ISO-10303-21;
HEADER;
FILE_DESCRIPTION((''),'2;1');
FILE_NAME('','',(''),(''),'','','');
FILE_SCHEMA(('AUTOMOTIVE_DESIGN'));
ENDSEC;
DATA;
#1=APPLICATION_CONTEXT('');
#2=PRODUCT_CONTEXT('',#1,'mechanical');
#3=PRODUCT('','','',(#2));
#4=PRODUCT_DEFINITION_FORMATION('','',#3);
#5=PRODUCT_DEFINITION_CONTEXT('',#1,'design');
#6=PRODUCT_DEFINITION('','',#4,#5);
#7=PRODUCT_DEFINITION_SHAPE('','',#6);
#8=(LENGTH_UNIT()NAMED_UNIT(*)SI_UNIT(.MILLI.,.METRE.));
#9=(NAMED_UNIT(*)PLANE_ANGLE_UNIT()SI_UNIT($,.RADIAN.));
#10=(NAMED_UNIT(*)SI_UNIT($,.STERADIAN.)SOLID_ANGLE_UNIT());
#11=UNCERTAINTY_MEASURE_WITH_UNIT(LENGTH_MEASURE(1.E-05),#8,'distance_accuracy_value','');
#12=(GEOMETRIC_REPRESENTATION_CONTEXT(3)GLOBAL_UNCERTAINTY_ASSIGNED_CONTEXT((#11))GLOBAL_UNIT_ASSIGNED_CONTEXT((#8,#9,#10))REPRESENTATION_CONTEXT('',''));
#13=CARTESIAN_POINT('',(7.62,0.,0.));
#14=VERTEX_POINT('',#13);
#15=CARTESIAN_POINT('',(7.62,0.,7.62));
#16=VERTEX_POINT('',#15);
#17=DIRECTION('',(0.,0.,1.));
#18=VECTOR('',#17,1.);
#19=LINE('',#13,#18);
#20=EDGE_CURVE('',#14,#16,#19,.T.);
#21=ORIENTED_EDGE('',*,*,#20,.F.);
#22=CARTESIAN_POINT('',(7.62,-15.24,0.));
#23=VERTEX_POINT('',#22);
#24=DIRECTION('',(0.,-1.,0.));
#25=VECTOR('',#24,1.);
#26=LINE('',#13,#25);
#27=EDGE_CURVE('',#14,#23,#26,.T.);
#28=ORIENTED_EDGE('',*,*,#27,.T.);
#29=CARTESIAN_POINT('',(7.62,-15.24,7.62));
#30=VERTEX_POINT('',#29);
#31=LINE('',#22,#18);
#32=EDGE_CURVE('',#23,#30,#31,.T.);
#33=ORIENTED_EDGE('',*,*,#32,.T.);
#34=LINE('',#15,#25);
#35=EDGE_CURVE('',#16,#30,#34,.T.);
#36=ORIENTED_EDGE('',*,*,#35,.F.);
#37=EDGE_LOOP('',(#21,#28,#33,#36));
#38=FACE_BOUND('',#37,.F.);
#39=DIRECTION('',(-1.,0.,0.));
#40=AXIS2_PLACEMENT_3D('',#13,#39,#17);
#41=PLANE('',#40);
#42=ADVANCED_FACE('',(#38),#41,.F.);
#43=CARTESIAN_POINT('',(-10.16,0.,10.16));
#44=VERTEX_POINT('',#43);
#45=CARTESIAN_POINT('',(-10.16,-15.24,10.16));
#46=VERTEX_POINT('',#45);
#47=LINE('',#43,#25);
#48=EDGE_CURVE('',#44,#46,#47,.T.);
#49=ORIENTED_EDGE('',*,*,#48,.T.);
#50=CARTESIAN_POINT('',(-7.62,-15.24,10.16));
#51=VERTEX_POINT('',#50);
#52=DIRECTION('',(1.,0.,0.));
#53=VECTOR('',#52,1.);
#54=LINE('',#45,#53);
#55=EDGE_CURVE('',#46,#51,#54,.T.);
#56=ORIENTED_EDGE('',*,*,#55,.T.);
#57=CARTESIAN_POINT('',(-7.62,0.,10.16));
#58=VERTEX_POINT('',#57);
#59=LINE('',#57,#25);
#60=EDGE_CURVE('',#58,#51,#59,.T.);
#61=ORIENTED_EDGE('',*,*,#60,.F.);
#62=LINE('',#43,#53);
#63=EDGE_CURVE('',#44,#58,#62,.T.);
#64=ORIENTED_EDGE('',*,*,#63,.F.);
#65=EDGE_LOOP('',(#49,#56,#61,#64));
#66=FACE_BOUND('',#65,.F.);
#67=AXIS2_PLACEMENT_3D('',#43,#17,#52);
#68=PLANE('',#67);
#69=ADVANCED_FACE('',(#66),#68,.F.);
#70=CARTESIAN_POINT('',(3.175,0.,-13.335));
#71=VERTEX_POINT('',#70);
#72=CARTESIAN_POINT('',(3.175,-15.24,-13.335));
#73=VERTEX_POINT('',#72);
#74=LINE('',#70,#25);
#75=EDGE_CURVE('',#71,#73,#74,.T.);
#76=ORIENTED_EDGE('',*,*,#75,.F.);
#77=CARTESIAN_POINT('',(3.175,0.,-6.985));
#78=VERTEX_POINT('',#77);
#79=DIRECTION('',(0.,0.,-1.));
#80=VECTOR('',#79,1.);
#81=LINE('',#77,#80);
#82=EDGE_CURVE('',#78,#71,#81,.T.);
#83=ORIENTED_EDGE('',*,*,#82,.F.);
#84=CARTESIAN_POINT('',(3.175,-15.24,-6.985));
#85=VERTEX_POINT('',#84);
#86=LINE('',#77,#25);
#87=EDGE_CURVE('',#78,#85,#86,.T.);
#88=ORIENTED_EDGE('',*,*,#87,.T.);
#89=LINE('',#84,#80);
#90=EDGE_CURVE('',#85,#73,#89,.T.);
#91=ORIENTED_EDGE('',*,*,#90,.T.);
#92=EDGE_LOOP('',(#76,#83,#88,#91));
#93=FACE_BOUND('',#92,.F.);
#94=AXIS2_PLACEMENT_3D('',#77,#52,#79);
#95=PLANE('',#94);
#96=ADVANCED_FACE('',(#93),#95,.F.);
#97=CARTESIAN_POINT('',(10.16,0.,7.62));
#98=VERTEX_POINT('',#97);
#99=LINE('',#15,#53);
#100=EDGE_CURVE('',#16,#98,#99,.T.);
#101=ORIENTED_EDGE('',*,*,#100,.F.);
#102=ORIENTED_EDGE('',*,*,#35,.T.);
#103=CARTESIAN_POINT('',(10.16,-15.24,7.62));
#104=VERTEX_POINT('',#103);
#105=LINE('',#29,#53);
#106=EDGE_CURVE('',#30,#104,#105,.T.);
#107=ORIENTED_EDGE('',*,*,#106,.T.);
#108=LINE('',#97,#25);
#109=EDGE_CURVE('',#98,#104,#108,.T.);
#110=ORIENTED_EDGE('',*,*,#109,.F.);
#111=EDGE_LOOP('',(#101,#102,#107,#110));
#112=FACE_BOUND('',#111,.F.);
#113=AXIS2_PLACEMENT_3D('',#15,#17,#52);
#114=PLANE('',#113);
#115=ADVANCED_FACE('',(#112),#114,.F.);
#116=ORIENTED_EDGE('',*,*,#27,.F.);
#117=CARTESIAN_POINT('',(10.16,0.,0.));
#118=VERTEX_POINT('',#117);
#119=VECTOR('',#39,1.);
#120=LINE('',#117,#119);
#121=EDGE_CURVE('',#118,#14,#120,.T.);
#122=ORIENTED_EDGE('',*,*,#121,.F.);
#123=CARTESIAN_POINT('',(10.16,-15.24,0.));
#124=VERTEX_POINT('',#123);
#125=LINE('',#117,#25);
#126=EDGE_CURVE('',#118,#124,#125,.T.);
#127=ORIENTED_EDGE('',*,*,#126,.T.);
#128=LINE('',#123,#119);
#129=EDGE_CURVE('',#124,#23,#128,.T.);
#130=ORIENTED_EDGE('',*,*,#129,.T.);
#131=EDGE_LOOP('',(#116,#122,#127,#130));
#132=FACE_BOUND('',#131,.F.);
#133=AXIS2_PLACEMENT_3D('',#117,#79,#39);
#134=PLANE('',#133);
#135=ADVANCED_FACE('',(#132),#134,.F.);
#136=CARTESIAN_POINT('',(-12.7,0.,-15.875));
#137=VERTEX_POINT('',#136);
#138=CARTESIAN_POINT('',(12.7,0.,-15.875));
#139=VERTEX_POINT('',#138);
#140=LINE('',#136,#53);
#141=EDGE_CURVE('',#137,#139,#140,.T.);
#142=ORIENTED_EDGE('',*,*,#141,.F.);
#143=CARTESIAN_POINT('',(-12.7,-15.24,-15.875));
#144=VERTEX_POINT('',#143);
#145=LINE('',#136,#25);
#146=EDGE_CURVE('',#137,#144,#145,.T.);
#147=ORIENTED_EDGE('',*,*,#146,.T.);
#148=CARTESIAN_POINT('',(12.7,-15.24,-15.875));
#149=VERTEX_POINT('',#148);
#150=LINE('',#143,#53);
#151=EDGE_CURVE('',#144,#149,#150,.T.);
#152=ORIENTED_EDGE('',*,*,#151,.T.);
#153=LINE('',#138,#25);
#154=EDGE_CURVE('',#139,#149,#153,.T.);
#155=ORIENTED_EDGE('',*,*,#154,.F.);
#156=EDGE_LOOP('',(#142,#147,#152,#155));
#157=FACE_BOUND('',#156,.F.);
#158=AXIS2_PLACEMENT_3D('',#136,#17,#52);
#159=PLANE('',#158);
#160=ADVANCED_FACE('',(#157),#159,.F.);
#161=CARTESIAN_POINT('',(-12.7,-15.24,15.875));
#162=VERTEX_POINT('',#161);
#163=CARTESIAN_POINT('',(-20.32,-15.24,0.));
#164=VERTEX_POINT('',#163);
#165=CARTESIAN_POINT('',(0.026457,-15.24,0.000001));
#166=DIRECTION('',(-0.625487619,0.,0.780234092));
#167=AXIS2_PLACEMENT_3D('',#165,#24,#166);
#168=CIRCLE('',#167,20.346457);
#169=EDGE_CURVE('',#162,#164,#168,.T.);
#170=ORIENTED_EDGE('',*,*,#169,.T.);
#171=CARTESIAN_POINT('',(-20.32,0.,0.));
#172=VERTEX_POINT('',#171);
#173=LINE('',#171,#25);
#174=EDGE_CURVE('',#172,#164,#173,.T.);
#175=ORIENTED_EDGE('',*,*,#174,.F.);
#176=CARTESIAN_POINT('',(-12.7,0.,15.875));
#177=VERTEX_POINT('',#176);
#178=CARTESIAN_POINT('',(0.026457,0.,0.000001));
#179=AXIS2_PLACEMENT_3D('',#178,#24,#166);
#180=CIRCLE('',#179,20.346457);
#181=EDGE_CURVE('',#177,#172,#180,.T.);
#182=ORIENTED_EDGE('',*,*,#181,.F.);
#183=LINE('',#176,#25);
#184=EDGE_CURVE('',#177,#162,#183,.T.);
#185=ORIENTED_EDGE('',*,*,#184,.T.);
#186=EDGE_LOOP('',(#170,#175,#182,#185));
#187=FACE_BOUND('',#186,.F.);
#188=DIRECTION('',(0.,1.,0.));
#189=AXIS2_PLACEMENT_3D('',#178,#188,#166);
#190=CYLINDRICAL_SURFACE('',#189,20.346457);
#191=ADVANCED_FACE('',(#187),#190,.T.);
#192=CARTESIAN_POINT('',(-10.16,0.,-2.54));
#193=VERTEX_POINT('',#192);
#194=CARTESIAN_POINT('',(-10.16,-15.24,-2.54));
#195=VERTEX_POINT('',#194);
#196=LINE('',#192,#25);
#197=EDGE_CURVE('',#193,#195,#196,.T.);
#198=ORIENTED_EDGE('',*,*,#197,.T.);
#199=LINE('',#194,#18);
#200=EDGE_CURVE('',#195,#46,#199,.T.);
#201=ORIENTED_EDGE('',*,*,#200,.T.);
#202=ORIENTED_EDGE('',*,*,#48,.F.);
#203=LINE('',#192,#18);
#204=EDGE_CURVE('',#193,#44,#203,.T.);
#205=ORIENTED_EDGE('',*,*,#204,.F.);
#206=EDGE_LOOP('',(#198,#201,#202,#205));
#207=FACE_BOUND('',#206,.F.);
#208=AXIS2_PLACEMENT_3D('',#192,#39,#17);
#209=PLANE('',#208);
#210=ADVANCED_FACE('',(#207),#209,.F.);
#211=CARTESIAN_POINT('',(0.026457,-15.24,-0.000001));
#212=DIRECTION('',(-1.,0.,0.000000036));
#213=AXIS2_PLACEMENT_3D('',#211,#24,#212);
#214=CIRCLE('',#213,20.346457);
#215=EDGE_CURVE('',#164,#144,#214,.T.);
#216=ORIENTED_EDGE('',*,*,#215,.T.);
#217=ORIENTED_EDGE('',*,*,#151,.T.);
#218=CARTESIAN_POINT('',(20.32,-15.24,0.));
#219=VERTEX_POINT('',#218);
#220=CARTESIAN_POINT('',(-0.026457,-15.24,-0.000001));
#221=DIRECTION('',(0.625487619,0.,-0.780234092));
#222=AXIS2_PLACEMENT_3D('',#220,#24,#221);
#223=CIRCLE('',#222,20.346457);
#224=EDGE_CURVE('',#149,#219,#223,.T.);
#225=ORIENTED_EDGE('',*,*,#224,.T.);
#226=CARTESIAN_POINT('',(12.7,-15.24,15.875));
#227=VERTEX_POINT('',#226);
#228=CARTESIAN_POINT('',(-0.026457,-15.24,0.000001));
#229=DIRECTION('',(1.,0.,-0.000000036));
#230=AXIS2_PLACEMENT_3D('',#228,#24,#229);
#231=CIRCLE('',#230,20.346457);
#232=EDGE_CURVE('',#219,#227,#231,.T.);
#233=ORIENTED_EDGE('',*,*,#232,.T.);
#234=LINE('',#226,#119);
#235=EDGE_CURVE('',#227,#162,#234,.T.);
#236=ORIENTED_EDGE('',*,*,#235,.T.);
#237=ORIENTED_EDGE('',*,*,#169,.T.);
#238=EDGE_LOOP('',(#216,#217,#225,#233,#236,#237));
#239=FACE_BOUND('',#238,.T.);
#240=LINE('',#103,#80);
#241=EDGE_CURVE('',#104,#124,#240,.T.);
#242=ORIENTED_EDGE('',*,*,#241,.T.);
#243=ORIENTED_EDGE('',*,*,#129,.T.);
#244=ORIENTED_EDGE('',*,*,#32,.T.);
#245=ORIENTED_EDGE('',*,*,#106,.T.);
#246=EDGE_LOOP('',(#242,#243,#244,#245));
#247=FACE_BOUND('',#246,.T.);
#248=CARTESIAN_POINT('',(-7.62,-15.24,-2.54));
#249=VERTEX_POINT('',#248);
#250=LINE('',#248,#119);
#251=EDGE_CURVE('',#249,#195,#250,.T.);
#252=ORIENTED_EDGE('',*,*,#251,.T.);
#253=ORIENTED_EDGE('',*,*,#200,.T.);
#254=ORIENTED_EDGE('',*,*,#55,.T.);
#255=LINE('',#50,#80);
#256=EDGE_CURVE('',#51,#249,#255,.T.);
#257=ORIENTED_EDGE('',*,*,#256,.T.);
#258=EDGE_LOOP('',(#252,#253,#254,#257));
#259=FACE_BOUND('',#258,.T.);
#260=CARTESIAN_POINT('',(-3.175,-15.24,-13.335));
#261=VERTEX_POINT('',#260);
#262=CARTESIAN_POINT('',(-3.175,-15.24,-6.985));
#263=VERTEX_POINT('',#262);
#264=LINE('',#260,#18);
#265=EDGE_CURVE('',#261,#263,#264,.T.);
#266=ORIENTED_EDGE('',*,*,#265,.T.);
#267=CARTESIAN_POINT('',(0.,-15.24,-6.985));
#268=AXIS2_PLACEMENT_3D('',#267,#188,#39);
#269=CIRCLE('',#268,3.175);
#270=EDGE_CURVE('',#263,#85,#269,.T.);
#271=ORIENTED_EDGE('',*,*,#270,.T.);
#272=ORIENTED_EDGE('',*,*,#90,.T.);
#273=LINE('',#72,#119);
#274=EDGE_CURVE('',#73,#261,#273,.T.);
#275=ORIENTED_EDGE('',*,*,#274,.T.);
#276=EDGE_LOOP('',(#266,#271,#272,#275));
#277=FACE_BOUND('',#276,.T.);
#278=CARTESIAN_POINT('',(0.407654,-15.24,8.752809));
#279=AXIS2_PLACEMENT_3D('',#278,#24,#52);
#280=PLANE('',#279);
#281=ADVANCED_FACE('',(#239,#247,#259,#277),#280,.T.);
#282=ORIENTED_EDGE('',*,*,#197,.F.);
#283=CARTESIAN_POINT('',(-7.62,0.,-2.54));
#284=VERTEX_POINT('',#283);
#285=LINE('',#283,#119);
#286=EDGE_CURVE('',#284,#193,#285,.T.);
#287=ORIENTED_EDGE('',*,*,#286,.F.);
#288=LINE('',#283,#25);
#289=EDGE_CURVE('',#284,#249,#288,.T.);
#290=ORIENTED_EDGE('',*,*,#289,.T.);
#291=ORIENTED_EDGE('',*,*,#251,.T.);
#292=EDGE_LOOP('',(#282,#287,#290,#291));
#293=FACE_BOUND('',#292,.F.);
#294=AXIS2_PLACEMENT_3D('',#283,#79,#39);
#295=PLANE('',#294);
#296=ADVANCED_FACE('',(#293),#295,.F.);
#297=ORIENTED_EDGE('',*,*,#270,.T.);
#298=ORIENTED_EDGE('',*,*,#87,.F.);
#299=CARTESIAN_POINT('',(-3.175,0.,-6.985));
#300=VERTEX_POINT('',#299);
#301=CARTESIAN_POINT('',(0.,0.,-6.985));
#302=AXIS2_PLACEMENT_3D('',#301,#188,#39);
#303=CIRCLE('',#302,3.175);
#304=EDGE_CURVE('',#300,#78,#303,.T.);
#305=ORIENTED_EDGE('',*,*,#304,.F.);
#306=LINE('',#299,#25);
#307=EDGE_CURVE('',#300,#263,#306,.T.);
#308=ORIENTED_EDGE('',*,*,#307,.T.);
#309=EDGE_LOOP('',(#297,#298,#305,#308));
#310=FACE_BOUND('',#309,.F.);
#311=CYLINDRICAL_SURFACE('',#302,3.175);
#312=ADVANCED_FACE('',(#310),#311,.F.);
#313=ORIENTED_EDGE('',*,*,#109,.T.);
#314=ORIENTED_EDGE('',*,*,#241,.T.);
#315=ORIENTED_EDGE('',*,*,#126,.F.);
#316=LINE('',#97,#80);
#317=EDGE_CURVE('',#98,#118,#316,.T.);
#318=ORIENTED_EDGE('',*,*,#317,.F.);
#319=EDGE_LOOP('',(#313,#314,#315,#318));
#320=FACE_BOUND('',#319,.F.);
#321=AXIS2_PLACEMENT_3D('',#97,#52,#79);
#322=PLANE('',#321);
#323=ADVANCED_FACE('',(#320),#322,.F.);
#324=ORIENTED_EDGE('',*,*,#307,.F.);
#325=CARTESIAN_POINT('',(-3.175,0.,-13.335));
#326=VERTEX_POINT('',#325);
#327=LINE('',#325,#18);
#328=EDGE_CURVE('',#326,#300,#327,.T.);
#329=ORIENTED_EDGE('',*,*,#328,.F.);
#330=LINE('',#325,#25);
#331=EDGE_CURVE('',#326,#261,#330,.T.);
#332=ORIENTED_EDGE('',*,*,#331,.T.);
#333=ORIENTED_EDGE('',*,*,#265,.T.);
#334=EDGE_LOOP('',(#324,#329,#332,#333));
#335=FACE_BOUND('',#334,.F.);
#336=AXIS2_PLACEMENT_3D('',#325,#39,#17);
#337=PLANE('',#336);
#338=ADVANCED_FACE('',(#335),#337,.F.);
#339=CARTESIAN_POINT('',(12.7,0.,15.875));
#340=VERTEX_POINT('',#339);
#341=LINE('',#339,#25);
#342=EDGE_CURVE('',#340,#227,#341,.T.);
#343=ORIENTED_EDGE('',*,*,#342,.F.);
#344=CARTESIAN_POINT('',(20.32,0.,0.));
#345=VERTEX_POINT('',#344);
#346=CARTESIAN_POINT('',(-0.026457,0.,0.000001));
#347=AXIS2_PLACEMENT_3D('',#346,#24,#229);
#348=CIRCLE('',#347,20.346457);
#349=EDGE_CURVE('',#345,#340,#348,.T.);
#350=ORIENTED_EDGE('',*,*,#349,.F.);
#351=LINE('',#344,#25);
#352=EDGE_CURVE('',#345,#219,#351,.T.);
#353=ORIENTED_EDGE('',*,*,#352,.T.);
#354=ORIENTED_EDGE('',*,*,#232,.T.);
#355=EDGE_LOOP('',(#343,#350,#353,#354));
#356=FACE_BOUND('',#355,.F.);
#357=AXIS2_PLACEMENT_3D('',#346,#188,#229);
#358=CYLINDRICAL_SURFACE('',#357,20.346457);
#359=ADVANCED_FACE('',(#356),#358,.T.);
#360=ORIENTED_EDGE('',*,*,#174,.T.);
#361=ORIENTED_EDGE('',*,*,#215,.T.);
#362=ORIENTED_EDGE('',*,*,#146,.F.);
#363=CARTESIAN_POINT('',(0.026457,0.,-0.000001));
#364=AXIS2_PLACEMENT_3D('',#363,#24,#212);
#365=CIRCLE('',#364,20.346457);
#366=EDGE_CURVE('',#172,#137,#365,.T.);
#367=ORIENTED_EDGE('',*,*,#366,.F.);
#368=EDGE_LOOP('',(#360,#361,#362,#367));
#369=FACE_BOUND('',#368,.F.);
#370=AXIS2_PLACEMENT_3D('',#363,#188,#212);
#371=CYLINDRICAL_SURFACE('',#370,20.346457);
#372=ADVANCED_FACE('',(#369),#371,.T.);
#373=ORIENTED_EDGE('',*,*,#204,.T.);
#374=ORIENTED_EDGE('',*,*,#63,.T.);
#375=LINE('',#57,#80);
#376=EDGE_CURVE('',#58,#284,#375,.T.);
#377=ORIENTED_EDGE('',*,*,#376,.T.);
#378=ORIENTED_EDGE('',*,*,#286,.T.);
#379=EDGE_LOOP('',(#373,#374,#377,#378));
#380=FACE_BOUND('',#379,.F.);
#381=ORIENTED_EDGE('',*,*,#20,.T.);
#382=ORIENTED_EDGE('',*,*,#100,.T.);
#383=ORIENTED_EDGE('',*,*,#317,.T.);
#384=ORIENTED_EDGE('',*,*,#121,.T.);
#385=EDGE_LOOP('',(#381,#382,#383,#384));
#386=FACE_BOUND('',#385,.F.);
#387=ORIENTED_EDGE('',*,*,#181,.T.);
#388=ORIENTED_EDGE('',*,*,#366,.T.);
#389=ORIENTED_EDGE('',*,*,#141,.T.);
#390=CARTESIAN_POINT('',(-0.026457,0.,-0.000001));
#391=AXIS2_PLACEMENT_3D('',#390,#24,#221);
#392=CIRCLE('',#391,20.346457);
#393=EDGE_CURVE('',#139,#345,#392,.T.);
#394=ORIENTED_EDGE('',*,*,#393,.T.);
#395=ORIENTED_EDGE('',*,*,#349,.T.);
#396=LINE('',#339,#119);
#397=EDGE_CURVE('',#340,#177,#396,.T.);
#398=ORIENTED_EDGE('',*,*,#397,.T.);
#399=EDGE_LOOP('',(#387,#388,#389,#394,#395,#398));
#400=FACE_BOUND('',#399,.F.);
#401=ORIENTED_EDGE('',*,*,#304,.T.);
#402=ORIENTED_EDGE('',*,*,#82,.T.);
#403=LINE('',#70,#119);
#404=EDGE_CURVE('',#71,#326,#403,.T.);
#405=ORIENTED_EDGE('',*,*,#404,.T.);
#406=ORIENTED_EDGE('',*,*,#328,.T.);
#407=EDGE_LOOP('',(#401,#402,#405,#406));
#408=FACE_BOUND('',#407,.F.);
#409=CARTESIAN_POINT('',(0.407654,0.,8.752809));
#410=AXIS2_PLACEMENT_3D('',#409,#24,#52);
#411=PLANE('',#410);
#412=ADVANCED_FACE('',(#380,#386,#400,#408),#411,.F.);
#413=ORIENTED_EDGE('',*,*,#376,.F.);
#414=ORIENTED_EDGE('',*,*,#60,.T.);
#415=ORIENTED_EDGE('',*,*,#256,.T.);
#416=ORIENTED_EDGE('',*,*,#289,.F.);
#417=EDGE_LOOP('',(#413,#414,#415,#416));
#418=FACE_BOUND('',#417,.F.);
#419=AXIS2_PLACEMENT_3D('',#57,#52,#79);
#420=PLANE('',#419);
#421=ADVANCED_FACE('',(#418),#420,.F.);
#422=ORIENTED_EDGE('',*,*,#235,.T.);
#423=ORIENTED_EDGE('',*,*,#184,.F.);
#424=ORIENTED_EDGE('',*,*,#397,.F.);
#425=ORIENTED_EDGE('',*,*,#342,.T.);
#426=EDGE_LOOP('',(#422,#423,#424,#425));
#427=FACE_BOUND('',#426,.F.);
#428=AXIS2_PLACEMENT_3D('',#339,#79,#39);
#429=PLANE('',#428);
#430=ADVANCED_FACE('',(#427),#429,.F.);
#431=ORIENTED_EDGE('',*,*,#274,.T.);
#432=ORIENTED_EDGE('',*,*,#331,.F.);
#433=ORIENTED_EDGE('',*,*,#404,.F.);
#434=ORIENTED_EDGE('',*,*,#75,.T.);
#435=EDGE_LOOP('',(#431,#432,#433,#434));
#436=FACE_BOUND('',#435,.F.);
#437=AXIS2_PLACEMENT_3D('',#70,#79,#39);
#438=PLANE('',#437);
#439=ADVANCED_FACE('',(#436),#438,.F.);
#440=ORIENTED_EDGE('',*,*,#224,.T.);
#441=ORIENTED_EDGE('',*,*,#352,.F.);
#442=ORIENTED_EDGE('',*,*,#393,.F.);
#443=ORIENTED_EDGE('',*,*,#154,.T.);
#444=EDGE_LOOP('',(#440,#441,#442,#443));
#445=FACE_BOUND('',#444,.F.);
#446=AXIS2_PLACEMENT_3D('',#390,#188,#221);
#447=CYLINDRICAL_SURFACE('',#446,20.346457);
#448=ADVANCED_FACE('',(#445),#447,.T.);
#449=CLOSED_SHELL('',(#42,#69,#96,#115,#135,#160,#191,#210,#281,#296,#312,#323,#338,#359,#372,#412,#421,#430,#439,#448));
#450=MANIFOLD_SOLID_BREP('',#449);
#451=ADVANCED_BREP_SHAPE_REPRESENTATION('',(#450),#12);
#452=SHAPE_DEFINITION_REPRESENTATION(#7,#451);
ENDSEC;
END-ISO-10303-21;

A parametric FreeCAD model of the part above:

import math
import FreeCAD as App
import Part
import Sketcher
Q = App.Units.Quantity

doc = App.newDocument("Part")
body = doc.addObject("PartDesign::Body", "Body")

# Sketch on XZ plane
sketch1 = body.newObject("Sketcher::SketchObject", "Sketch")
sketch1.AttachmentSupport = (doc.getObject("XZ_Plane"), [""])
sketch1.MapMode = "FlatFace"
sketch1.addGeometry([
    Part.LineSegment(App.Vector(12.7, 15.875, 0), App.Vector(-12.7, 15.875, 0)),  # 0
    Part.ArcOfCircle(Part.Circle(App.Vector(0.026457, 0.000001, 0), App.Vector(0, 0, 1), 20.346457), math.radians(128.717986), math.radians(180.000002)),  # 1
    Part.ArcOfCircle(Part.Circle(App.Vector(0.026457, -0.000001, 0), App.Vector(0, 0, 1), 20.346457), math.radians(179.999998), math.radians(231.282014)),  # 2
    Part.LineSegment(App.Vector(-12.7, -15.875, 0), App.Vector(12.7, -15.875, 0)),  # 3
    Part.ArcOfCircle(Part.Circle(App.Vector(-0.026457, -0.000001, 0), App.Vector(0, 0, 1), 20.346457), math.radians(-51.282014), math.radians(0.000002)),  # 4
    Part.ArcOfCircle(Part.Circle(App.Vector(-0.026457, 0.000001, 0), App.Vector(0, 0, 1), 20.346457), math.radians(-0.000002), math.radians(51.282014)),  # 5
    Part.LineSegment(App.Vector(-10.16, 10.16, 0), App.Vector(-7.62, 10.16, 0)),  # 6
    Part.LineSegment(App.Vector(-7.62, 10.16, 0), App.Vector(-7.62, -2.54, 0)),  # 7
    Part.LineSegment(App.Vector(-7.62, -2.54, 0), App.Vector(-10.16, -2.54, 0)),  # 8
    Part.LineSegment(App.Vector(-10.16, -2.54, 0), App.Vector(-10.16, 10.16, 0)),  # 9
    Part.LineSegment(App.Vector(3.175, -6.985, 0), App.Vector(3.175, -13.335, 0)),  # 10
    Part.LineSegment(App.Vector(3.175, -13.335, 0), App.Vector(-3.175, -13.335, 0)),  # 11
    Part.LineSegment(App.Vector(-3.175, -13.335, 0), App.Vector(-3.175, -6.985, 0)),  # 12
    Part.ArcOfCircle(Part.Circle(App.Vector(0, -6.985, 0), App.Vector(0, 0, 1), 3.175), math.radians(0), math.radians(180)),  # 13
    Part.LineSegment(App.Vector(7.62, 7.62, 0), App.Vector(10.16, 7.62, 0)),  # 14
    Part.LineSegment(App.Vector(10.16, 7.62, 0), App.Vector(10.16, 0, 0)),  # 15
    Part.LineSegment(App.Vector(10.16, 0, 0), App.Vector(7.62, 0, 0)),  # 16
    Part.LineSegment(App.Vector(7.62, 0, 0), App.Vector(7.62, 7.62, 0)),  # 17
], False)
sketch1.addConstraint([
    Sketcher.Constraint("Coincident", 0, 2, 1, 1),
    Sketcher.Constraint("Tangent", 1, 2, 2, 1),
    Sketcher.Constraint("Coincident", 2, 2, 3, 1),
    Sketcher.Constraint("Coincident", 3, 2, 4, 1),
    Sketcher.Constraint("Tangent", 4, 2, 5, 1),
    Sketcher.Constraint("Coincident", 5, 2, 0, 1),
    Sketcher.Constraint("Coincident", 6, 2, 7, 1),
    Sketcher.Constraint("Coincident", 7, 2, 8, 1),
    Sketcher.Constraint("Coincident", 8, 2, 9, 1),
    Sketcher.Constraint("Coincident", 9, 2, 6, 1),
    Sketcher.Constraint("Coincident", 10, 2, 11, 1),
    Sketcher.Constraint("Coincident", 11, 2, 12, 1),
    Sketcher.Constraint("Tangent", 12, 2, 13, 2),
    Sketcher.Constraint("Tangent", 13, 1, 10, 1),
    Sketcher.Constraint("Coincident", 14, 2, 15, 1),
    Sketcher.Constraint("Coincident", 15, 2, 16, 1),
    Sketcher.Constraint("Coincident", 16, 2, 17, 1),
    Sketcher.Constraint("Coincident", 17, 2, 14, 1),
    Sketcher.Constraint("Horizontal", 0),
    Sketcher.Constraint("Horizontal", 3),
    Sketcher.Constraint("Horizontal", 6),
    Sketcher.Constraint("Vertical", 7),
    Sketcher.Constraint("Horizontal", 8),
    Sketcher.Constraint("Vertical", 9),
    Sketcher.Constraint("Vertical", 10),
    Sketcher.Constraint("Horizontal", 11),
    Sketcher.Constraint("Vertical", 12),
    Sketcher.Constraint("Horizontal", 14),
    Sketcher.Constraint("Vertical", 15),
    Sketcher.Constraint("Horizontal", 16),
    Sketcher.Constraint("Vertical", 17),
    Sketcher.Constraint("Equal", 1, 2),
    Sketcher.Constraint("Equal", 2, 4),
    Sketcher.Constraint("Equal", 4, 5),
    Sketcher.Constraint("Symmetric", 1, 3, 4, 3, -1, 1),
    Sketcher.Constraint("Symmetric", 0, 2, 2, 2, -1),
    Sketcher.Constraint("PointOnObject", 13, 3, -2),
    Sketcher.Constraint("PointOnObject", 1, 2, -1),
    Sketcher.Constraint("PointOnObject", 4, 2, -1),
    Sketcher.Constraint("PointOnObject", 15, 2, -1),
    Sketcher.Constraint("Equal", 8, 14),
    Sketcher.Constraint("Equal", 11, 10),
    Sketcher.Constraint("DistanceX", 0, 2, 0, 1, Q("1 in")),
    Sketcher.Constraint("DistanceX", 6, 1, 6, 2, Q("0.1 in")),
    Sketcher.Constraint("DistanceY", 7, 2, 7, 1, Q("0.5 in")),
    Sketcher.Constraint("DistanceY", 15, 2, 15, 1, Q("0.3 in")),
    Sketcher.Constraint("Radius", 13, Q("0.125 in")),
    Sketcher.Constraint("DistanceX", 1, 2, -1, 1, Q("0.8 in")),
    Sketcher.Constraint("DistanceX", 6, 2, -1, 1, Q("0.3 in")),
    Sketcher.Constraint("DistanceY", -1, 1, 6, 2, Q("0.4 in")),
    Sketcher.Constraint("DistanceX", -1, 1, 14, 2, Q("0.4 in")),
    Sketcher.Constraint("DistanceY", 13, 3, 0, 2, Q("0.9 in")),
    Sketcher.Constraint("DistanceY", 3, 2, 10, 2, Q("0.1 in")),
])
pad1 = body.newObject("PartDesign::Pad", "Pad")
pad1.Profile = sketch1
pad1.Length = Q("0.6 in")

doc.recompute()
